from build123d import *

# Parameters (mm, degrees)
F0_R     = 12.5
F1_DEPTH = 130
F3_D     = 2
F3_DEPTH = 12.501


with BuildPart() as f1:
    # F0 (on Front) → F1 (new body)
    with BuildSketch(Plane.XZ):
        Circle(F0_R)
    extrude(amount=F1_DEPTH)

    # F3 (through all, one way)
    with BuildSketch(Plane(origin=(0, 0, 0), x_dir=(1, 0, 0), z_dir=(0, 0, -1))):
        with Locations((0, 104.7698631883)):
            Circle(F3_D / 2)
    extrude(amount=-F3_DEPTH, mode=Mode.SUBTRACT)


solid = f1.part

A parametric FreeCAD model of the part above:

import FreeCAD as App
import Part
import Sketcher

V = App.Vector
Q = App.Units.Quantity

doc = App.newDocument("Part")
body = doc.addObject("PartDesign::Body", "Body")

# Sketch on XZ plane
sketch1 = body.newObject("Sketcher::SketchObject", "Sketch")
sketch1.AttachmentSupport = (doc.getObject("XZ_Plane"), [""])
sketch1.MapMode = "FlatFace"
sketch1.addGeometry(Part.Circle(V(0, 0, 0), V(0, 0, 1), 12), False)
sketch1.addConstraint(Sketcher.Constraint("Coincident", 0, 3, -1, 1))
sketch1.addConstraint(Sketcher.Constraint("Diameter", 0, Q("25 mm")))
pad1 = body.newObject("PartDesign::Pad", "Pad")
pad1.Profile = sketch1
pad1.Length = 130

# Sketch on XY plane
sketch2 = body.newObject("Sketcher::SketchObject", "Sketch001")
sketch2.AttachmentSupport = (doc.getObject("XY_Plane"), [""])
sketch2.MapMode = "FlatFace"
sketch2.addGeometry(Part.Circle(V(0, -104.8, 0), V(0, 0, 1), 1), False)
sketch2.addConstraint(Sketcher.Constraint("PointOnObject", 0, 3, -2))
sketch2.addConstraint(Sketcher.Constraint("Diameter", 0, Q("2 mm")))
sketch2.addConstraint(Sketcher.Constraint("DistanceY", 0, 3, -1, 1, Q("104.769863 mm")))
pocket1 = body.newObject("PartDesign::Pocket", "Pocket")
pocket1.Profile = sketch2
pocket1.Type = "ThroughAll"
pocket1.Reversed = True

doc.recompute()
